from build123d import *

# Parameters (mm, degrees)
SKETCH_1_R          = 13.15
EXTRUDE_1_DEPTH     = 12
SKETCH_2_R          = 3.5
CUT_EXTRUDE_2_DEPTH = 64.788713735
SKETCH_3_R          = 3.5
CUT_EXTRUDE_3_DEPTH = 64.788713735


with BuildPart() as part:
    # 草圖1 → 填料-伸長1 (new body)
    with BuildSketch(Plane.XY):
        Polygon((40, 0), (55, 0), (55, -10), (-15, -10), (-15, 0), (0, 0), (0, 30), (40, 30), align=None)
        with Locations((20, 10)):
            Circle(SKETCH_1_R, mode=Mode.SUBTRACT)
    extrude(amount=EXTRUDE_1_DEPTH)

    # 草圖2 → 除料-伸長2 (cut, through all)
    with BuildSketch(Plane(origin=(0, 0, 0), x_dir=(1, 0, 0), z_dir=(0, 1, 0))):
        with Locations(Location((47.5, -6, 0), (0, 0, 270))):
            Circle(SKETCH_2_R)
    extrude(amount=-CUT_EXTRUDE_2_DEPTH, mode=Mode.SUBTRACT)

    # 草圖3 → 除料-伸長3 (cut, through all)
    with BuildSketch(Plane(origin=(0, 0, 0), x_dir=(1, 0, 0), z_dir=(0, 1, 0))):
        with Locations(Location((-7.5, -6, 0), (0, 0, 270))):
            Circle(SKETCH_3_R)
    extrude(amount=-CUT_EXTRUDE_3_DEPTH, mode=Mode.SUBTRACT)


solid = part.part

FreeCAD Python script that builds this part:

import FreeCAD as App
import Part
import Sketcher


def add_polygon(sketch, points):
    """Adds a closed chain of lines whose ends are joined by coincident constraints."""
    first, n = sketch.GeometryCount, len(points)
    for a, b in zip(points, points[1:] + points[:1]):
        sketch.addGeometry(Part.LineSegment(App.Vector(*a, 0), App.Vector(*b, 0)), False)
    for i in range(n):
        sketch.addConstraint(Sketcher.Constraint("Coincident", first + i, 2, first + (i + 1) % n, 1))

doc = App.newDocument("Part")
params = doc.addObject("Spreadsheet::Sheet", "Params")
for row, (alias, value) in enumerate([
    ("sketch1_diameter", "26.3 mm"),
    ("sketch1_width", "15 mm"),
    ("sketch1_width2", "40 mm"),
    ("sketch1_height", "30 mm"),
    ("sketch1_height2", "10 mm"),
    ("pad1_length", "12 mm"),
    ("sketch2_diameter", "7 mm"),
    ("sketch3_diameter", "7 mm"),
], start=1):
    params.set(f"A{row}", alias)
    params.set(f"B{row}", "=" + value)
    params.setAlias(f"B{row}", alias)

body = doc.addObject("PartDesign::Body", "Body")

# Sketch on XY plane
sketch1 = body.newObject("Sketcher::SketchObject", "Sketch")
sketch1.AttachmentSupport = (doc.getObject("XY_Plane"), [""])
sketch1.MapMode = "FlatFace"
add_polygon(sketch1, [(55, 0), (40, 0), (40, 30), (0, 30), (0, 0), (-15, 0), (-15, -10), (55, -10)])  # lines 0-7
sketch1.addGeometry(Part.Circle(App.Vector(20, 10, 0), App.Vector(0, 0, 1), 13), False)  # 8
sketch1.addConstraint(Sketcher.Constraint("Horizontal", 0))
sketch1.addConstraint(Sketcher.Constraint("Vertical", 1))
sketch1.addConstraint(Sketcher.Constraint("Horizontal", 2))
sketch1.addConstraint(Sketcher.Constraint("Vertical", 3))
sketch1.addConstraint(Sketcher.Constraint("Horizontal", 4))
sketch1.addConstraint(Sketcher.Constraint("Vertical", 5))
sketch1.addConstraint(Sketcher.Constraint("Horizontal", 6))
sketch1.addConstraint(Sketcher.Constraint("Vertical", 7))
sketch1.addConstraint(Sketcher.Constraint("Coincident", 3, 2, -1, 1))
sketch1.addConstraint(Sketcher.Constraint("PointOnObject", 0, 2, -1))
sketch1.addConstraint(Sketcher.Constraint("Equal", 0, 4))
sketch1.addConstraint(Sketcher.Constraint("Diameter", 8, 26.3))
sketch1.addConstraint(Sketcher.Constraint("DistanceX", 0, 2, 0, 1, 15.0))
sketch1.addConstraint(Sketcher.Constraint("DistanceX", 2, 2, 2, 1, 40.0))
sketch1.addConstraint(Sketcher.Constraint("DistanceY", 1, 1, 1, 2, 30.0))
sketch1.addConstraint(Sketcher.Constraint("DistanceY", 5, 2, 5, 1, 10.0))
sketch1.addConstraint(Sketcher.Constraint("DistanceX", -1, 1, 8, 3, 20.0))
sketch1.addConstraint(Sketcher.Constraint("DistanceY", -1, 1, 8, 3, 10.0))
sketch1.setExpression("Constraints[19]", "Params.sketch1_diameter")
sketch1.setExpression("Constraints[20]", "Params.sketch1_width")
sketch1.setExpression("Constraints[21]", "Params.sketch1_width2")
sketch1.setExpression("Constraints[22]", "Params.sketch1_height")
sketch1.setExpression("Constraints[23]", "Params.sketch1_height2")
pad1 = body.newObject("PartDesign::Pad", "Pad")
pad1.Profile = sketch1
pad1.setExpression("Length", "Params.pad1_length")

# Sketch on XZ plane
sketch2 = body.newObject("Sketcher::SketchObject", "Sketch001")
sketch2.AttachmentSupport = (doc.getObject("XZ_Plane"), [""])
sketch2.MapMode = "FlatFace"
sketch2.addGeometry(Part.Circle(App.Vector(47.5, 6, 0), App.Vector(0, 0, 1), 3.5), False)
sketch2.addConstraint(Sketcher.Constraint("Diameter", 0, 7.0))
sketch2.addConstraint(Sketcher.Constraint("DistanceY", -1, 1, 0, 3, 6.0))
sketch2.addConstraint(Sketcher.Constraint("DistanceX", -1, 1, 0, 3, 47.5))
sketch2.setExpression("Constraints[0]", "Params.sketch2_diameter")
pocket1 = body.newObject("PartDesign::Pocket", "Pocket")
pocket1.Profile = sketch2
pocket1.Type = "ThroughAll"
pocket1.Reversed = True

# Sketch on XZ plane
sketch3 = body.newObject("Sketcher::SketchObject", "Sketch002")
sketch3.AttachmentSupport = (doc.getObject("XZ_Plane"), [""])
sketch3.MapMode = "FlatFace"
sketch3.addGeometry(Part.Circle(App.Vector(-7.5, 6, 0), App.Vector(0, 0, 1), 3.5), False)
sketch3.addConstraint(Sketcher.Constraint("Diameter", 0, 7.0))
sketch3.addConstraint(Sketcher.Constraint("DistanceY", -1, 1, 0, 3, 6.0))
sketch3.addConstraint(Sketcher.Constraint("DistanceX", 0, 3, -1, 1, 7.5))
sketch3.setExpression("Constraints[0]", "Params.sketch3_diameter")
pocket2 = body.newObject("PartDesign::Pocket", "Pocket001")
pocket2.Profile = sketch3
pocket2.Type = "ThroughAll"
pocket2.Reversed = True

doc.recompute()
